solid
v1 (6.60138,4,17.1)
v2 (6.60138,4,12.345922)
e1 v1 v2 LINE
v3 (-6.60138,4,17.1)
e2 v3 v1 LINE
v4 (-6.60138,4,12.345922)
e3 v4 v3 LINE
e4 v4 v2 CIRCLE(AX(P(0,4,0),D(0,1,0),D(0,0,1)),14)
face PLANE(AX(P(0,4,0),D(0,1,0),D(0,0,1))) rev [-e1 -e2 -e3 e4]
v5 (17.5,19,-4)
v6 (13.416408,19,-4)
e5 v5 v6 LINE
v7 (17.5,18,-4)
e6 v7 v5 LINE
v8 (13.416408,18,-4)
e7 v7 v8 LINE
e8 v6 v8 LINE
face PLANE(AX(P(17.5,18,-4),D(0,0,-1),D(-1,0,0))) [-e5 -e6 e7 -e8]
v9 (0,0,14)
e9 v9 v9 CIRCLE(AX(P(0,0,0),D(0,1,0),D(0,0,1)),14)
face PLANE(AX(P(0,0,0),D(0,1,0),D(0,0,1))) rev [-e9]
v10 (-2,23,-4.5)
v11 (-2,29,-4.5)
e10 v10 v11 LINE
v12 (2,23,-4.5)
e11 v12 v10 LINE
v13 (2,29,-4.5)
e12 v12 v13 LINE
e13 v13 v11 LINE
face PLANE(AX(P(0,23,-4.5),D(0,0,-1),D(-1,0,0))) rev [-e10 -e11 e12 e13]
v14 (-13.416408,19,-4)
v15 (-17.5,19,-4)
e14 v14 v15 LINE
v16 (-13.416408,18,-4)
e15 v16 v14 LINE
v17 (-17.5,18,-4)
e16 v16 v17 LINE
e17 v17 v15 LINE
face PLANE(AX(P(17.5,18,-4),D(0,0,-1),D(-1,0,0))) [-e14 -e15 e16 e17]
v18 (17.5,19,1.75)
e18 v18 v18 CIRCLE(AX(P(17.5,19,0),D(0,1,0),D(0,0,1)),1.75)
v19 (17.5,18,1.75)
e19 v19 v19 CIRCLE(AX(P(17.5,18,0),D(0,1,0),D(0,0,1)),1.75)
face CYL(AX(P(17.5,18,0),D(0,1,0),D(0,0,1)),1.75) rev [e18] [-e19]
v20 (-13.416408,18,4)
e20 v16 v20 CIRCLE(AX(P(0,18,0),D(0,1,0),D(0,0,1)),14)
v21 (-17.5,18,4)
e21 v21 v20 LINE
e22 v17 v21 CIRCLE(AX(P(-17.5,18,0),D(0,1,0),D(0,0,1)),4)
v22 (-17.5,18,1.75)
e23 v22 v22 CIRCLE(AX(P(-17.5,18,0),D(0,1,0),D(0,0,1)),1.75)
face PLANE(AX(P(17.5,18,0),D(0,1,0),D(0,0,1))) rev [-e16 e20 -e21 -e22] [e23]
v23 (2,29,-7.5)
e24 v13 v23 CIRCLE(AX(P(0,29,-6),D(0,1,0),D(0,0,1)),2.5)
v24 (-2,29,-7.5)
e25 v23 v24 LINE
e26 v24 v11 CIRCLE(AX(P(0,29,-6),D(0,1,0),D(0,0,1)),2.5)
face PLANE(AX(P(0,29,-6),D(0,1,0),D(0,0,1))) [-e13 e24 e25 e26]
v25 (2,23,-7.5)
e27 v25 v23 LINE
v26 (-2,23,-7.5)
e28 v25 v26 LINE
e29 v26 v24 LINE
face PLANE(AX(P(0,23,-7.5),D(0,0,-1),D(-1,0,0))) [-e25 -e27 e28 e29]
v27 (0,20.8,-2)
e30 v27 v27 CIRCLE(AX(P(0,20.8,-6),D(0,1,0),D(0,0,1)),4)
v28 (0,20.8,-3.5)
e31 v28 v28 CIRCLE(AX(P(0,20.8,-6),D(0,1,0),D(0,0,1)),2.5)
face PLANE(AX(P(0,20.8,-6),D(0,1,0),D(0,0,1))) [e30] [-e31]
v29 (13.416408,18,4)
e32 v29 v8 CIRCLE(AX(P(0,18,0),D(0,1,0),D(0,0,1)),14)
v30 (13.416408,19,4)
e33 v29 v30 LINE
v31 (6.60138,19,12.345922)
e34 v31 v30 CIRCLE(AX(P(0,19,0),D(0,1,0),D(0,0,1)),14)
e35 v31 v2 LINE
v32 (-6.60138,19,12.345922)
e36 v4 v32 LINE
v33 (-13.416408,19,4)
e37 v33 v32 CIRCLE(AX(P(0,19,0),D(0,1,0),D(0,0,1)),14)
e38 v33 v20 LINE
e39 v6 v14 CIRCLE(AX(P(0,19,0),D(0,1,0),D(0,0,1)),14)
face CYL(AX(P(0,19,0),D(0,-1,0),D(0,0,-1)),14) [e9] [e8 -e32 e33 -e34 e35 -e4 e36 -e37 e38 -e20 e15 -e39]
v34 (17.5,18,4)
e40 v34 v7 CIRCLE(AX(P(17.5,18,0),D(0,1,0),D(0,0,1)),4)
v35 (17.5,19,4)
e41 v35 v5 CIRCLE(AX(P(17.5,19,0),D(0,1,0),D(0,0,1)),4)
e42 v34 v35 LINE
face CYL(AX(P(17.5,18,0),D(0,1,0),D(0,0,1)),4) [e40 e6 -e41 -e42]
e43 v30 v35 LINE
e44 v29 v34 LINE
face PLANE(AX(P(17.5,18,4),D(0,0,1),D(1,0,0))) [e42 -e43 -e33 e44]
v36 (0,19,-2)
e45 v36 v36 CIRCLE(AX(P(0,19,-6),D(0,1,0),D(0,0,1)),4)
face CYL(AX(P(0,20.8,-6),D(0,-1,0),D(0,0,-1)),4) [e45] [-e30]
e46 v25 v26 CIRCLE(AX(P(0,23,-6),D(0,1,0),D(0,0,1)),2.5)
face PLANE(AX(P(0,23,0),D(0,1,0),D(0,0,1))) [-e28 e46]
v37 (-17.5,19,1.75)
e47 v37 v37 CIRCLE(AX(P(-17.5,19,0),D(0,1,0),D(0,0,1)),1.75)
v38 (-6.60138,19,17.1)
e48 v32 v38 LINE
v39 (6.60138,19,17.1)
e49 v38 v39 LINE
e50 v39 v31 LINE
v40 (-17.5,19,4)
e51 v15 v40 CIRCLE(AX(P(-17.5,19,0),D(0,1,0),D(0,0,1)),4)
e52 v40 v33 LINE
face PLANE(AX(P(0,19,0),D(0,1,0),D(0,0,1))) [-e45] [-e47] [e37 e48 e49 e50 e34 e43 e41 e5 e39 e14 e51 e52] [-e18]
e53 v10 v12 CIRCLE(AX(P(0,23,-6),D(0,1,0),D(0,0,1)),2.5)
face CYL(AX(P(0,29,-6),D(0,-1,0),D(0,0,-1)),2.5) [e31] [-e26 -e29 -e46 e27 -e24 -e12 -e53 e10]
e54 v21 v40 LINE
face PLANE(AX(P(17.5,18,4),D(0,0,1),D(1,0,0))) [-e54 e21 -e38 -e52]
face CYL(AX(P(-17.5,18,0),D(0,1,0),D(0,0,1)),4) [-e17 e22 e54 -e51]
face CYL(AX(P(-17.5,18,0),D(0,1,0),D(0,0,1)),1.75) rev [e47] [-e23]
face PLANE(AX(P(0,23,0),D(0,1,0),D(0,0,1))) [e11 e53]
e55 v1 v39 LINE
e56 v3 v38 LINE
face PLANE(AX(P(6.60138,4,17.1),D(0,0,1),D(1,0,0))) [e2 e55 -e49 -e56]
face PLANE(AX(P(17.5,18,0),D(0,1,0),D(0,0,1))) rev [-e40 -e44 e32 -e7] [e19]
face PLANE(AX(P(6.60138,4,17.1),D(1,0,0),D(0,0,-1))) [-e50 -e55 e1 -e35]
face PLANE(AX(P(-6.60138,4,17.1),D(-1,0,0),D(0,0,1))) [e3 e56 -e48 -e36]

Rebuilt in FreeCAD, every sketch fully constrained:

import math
import FreeCAD as App
import Part
import Sketcher
from FreeCAD import Vector
Q = App.Units.Quantity

doc = App.newDocument("Part")
body = doc.addObject("PartDesign::Body", "Body")

# Sketch on XZ plane
sketch1 = body.newObject("Sketcher::SketchObject", "Sketch")
sketch1.AttachmentSupport = (doc.getObject("XZ_Plane"), [""])
sketch1.MapMode = "FlatFace"
sketch1.addGeometry(Part.Circle(Vector(0, 0, 0), Vector(0, 0, 1), 14), False)
sketch1.addConstraint([
    Sketcher.Constraint("Coincident", 0, 3, -1, 1),
    Sketcher.Constraint("Diameter", 0, Q("28 mm")),
])
pad1 = body.newObject("PartDesign::Pad", "Pad")
pad1.Profile = sketch1
pad1.Length = 19
pad1.Reversed = True

# Sketch on XZ plane
sketch2 = body.newObject("Sketcher::SketchObject", "Sketch001")
sketch2.AttachmentSupport = (doc.getObject("XZ_Plane"), [""])
sketch2.MapMode = "FlatFace"
sketch2.AttachmentOffset = App.Placement(Vector(0, 0, -19), App.Rotation())
sketch2.addGeometry([
    Part.LineSegment(Vector(-7, 11, 0), Vector(-7, 17, 0)),
    Part.LineSegment(Vector(-7, 17, 0), Vector(7, 17, 0)),
    Part.LineSegment(Vector(7, 17, 0), Vector(7, 11, 0)),
    Part.LineSegment(Vector(7, 11, 0), Vector(-7, 11, 0)),
], False)
sketch2.addConstraint([
    Sketcher.Constraint("Coincident", 0, 2, 1, 1),
    Sketcher.Constraint("Coincident", 1, 2, 2, 1),
    Sketcher.Constraint("Coincident", 2, 2, 3, 1),
    Sketcher.Constraint("Coincident", 3, 2, 0, 1),
    Sketcher.Constraint("Vertical", 0),
    Sketcher.Constraint("Horizontal", 1),
    Sketcher.Constraint("Vertical", 2),
    Sketcher.Constraint("Horizontal", 3),
    Sketcher.Constraint("DistanceY", 0, 1, 0, 2, Q("6.2 mm")),
    Sketcher.Constraint("DistanceY", -1, 1, 0, 2, Q("17.1 mm")),
    Sketcher.Constraint("DistanceX", 1, 1, 1, 2, Q("13.20276 mm")),
    Sketcher.Constraint("DistanceX", 0, 2, -1, 1, Q("6.60138 mm")),
])
pad2 = body.newObject("PartDesign::Pad", "Pad001")
pad2.Profile = sketch2
pad2.Length = 15

# Sketch on XZ plane
sketch3 = body.newObject("Sketcher::SketchObject", "Sketch002")
sketch3.AttachmentSupport = (doc.getObject("XZ_Plane"), [""])
sketch3.MapMode = "FlatFace"
sketch3.AttachmentOffset = App.Placement(Vector(0, 0, -19), App.Rotation())
sketch3.addGeometry([
    Part.LineSegment(Vector(-17.5, 4, 0), Vector(17.5, 4, 0)),  # 0
    Part.ArcOfCircle(Part.Circle(Vector(17.5, 0, 0), Vector(0, 0, 1), 4), math.radians(-90), math.radians(90)),  # 1
    Part.LineSegment(Vector(17.5, -4, 0), Vector(-17.5, -4, 0)),  # 2
    Part.ArcOfCircle(Part.Circle(Vector(-17.5, 0, 0), Vector(0, 0, 1), 4), math.radians(90), math.radians(270)),  # 3
    Part.Circle(Vector(17.5, 0, 0), Vector(0, 0, 1), 1.8),  # 4
    Part.Circle(Vector(-17.5, 0, 0), Vector(0, 0, 1), 1.8),  # 5
], False)
sketch3.addConstraint([
    Sketcher.Constraint("Tangent", 0, 2, 1, 2),
    Sketcher.Constraint("Tangent", 1, 1, 2, 1),
    Sketcher.Constraint("Tangent", 2, 2, 3, 2),
    Sketcher.Constraint("Tangent", 3, 1, 0, 1),
    Sketcher.Constraint("Horizontal", 0),
    Sketcher.Constraint("Horizontal", 2),
    Sketcher.Constraint("Coincident", 4, 3, 1, 3),
    Sketcher.Constraint("Coincident", 5, 3, 3, 3),
    Sketcher.Constraint("Equal", 4, 5),
    Sketcher.Constraint("Symmetric", 1, 3, 3, 3, -1, 1),
    Sketcher.Constraint("Radius", 1, Q("4 mm")),
    Sketcher.Constraint("Diameter", 4, Q("3.5 mm")),
    Sketcher.Constraint("DistanceX", 0, 1, 0, 2, Q("35 mm")),
])
pad3 = body.newObject("PartDesign::Pad", "Pad002")
pad3.Profile = sketch3
pad3.Length = 1

# Sketch on XZ plane
sketch4 = body.newObject("Sketcher::SketchObject", "Sketch003")
sketch4.AttachmentSupport = (doc.getObject("XZ_Plane"), [""])
sketch4.MapMode = "FlatFace"
sketch4.AttachmentOffset = App.Placement(Vector(0, 0, -19), App.Rotation())
sketch4.addGeometry(Part.Circle(Vector(0, -6, 0), Vector(0, 0, 1), 4), False)
sketch4.addConstraint([
    Sketcher.Constraint("PointOnObject", 0, 3, -2),
    Sketcher.Constraint("Diameter", 0, Q("8 mm")),
    Sketcher.Constraint("DistanceY", 0, 3, -1, 1, Q("6 mm")),
])
pad4 = body.newObject("PartDesign::Pad", "Pad003")
pad4.Profile = sketch4
pad4.Length = 1.8
pad4.Reversed = True

# Sketch on XZ plane
sketch5 = body.newObject("Sketcher::SketchObject", "Sketch004")
sketch5.AttachmentSupport = (doc.getObject("XZ_Plane"), [""])
sketch5.MapMode = "FlatFace"
sketch5.AttachmentOffset = App.Placement(Vector(0, 0, -20.8), App.Rotation())
sketch5.addGeometry(Part.Circle(Vector(0, -6, 0), Vector(0, 0, 1), 2.5), False)
sketch5.addConstraint([
    Sketcher.Constraint("PointOnObject", 0, 3, -2),
    Sketcher.Constraint("Diameter", 0, Q("5 mm")),
    Sketcher.Constraint("DistanceY", 0, 3, -1, 1, Q("6 mm")),
])
pad5 = body.newObject("PartDesign::Pad", "Pad004")
pad5.Profile = sketch5
pad5.Length = 8.2
pad5.Reversed = True

# Sketch on XZ plane
sketch6 = body.newObject("Sketcher::SketchObject", "Sketch005")
sketch6.AttachmentSupport = (doc.getObject("XZ_Plane"), [""])
sketch6.MapMode = "FlatFace"
sketch6.AttachmentOffset = App.Placement(Vector(0, 0, -23), App.Rotation())
sketch6.addGeometry([
    Part.LineSegment(Vector(2, -4.5, 0), Vector(-2, -4.5, 0)),
    Part.ArcOfCircle(Part.Circle(Vector(0, -6, 0), Vector(0, 0, 1), 2.5), math.radians(37), math.radians(143)),
    Part.LineSegment(Vector(-2, -7.5, 0), Vector(2, -7.5, 0)),
    Part.ArcOfCircle(Part.Circle(Vector(0, -6, 0), Vector(0, 0, 1), 2.5), math.radians(-143), math.radians(-37)),
], False)
sketch6.addConstraint([
    Sketcher.Constraint("Coincident", 0, 1, 1, 1),
    Sketcher.Constraint("Coincident", 1, 2, 0, 2),
    Sketcher.Constraint("Coincident", 2, 1, 3, 1),
    Sketcher.Constraint("Coincident", 3, 2, 2, 2),
    Sketcher.Constraint("Horizontal", 0),
    Sketcher.Constraint("Horizontal", 2),
    Sketcher.Constraint("Coincident", 3, 3, 1, 3),
    Sketcher.Constraint("Equal", 1, 3),
    Sketcher.Constraint("PointOnObject", 1, 3, -2),
    Sketcher.Constraint("Vertical", 1, 2, 2, 1),
    Sketcher.Constraint("Radius", 1, Q("2.5 mm")),
    Sketcher.Constraint("DistanceX", 0, 2, 0, 1, Q("4 mm")),
    Sketcher.Constraint("DistanceY", 1, 3, -1, 1, Q("6 mm")),
])
pocket1 = body.newObject("PartDesign::Pocket", "Pocket")
pocket1.Profile = sketch6
pocket1.Length = 6

doc.recompute()
